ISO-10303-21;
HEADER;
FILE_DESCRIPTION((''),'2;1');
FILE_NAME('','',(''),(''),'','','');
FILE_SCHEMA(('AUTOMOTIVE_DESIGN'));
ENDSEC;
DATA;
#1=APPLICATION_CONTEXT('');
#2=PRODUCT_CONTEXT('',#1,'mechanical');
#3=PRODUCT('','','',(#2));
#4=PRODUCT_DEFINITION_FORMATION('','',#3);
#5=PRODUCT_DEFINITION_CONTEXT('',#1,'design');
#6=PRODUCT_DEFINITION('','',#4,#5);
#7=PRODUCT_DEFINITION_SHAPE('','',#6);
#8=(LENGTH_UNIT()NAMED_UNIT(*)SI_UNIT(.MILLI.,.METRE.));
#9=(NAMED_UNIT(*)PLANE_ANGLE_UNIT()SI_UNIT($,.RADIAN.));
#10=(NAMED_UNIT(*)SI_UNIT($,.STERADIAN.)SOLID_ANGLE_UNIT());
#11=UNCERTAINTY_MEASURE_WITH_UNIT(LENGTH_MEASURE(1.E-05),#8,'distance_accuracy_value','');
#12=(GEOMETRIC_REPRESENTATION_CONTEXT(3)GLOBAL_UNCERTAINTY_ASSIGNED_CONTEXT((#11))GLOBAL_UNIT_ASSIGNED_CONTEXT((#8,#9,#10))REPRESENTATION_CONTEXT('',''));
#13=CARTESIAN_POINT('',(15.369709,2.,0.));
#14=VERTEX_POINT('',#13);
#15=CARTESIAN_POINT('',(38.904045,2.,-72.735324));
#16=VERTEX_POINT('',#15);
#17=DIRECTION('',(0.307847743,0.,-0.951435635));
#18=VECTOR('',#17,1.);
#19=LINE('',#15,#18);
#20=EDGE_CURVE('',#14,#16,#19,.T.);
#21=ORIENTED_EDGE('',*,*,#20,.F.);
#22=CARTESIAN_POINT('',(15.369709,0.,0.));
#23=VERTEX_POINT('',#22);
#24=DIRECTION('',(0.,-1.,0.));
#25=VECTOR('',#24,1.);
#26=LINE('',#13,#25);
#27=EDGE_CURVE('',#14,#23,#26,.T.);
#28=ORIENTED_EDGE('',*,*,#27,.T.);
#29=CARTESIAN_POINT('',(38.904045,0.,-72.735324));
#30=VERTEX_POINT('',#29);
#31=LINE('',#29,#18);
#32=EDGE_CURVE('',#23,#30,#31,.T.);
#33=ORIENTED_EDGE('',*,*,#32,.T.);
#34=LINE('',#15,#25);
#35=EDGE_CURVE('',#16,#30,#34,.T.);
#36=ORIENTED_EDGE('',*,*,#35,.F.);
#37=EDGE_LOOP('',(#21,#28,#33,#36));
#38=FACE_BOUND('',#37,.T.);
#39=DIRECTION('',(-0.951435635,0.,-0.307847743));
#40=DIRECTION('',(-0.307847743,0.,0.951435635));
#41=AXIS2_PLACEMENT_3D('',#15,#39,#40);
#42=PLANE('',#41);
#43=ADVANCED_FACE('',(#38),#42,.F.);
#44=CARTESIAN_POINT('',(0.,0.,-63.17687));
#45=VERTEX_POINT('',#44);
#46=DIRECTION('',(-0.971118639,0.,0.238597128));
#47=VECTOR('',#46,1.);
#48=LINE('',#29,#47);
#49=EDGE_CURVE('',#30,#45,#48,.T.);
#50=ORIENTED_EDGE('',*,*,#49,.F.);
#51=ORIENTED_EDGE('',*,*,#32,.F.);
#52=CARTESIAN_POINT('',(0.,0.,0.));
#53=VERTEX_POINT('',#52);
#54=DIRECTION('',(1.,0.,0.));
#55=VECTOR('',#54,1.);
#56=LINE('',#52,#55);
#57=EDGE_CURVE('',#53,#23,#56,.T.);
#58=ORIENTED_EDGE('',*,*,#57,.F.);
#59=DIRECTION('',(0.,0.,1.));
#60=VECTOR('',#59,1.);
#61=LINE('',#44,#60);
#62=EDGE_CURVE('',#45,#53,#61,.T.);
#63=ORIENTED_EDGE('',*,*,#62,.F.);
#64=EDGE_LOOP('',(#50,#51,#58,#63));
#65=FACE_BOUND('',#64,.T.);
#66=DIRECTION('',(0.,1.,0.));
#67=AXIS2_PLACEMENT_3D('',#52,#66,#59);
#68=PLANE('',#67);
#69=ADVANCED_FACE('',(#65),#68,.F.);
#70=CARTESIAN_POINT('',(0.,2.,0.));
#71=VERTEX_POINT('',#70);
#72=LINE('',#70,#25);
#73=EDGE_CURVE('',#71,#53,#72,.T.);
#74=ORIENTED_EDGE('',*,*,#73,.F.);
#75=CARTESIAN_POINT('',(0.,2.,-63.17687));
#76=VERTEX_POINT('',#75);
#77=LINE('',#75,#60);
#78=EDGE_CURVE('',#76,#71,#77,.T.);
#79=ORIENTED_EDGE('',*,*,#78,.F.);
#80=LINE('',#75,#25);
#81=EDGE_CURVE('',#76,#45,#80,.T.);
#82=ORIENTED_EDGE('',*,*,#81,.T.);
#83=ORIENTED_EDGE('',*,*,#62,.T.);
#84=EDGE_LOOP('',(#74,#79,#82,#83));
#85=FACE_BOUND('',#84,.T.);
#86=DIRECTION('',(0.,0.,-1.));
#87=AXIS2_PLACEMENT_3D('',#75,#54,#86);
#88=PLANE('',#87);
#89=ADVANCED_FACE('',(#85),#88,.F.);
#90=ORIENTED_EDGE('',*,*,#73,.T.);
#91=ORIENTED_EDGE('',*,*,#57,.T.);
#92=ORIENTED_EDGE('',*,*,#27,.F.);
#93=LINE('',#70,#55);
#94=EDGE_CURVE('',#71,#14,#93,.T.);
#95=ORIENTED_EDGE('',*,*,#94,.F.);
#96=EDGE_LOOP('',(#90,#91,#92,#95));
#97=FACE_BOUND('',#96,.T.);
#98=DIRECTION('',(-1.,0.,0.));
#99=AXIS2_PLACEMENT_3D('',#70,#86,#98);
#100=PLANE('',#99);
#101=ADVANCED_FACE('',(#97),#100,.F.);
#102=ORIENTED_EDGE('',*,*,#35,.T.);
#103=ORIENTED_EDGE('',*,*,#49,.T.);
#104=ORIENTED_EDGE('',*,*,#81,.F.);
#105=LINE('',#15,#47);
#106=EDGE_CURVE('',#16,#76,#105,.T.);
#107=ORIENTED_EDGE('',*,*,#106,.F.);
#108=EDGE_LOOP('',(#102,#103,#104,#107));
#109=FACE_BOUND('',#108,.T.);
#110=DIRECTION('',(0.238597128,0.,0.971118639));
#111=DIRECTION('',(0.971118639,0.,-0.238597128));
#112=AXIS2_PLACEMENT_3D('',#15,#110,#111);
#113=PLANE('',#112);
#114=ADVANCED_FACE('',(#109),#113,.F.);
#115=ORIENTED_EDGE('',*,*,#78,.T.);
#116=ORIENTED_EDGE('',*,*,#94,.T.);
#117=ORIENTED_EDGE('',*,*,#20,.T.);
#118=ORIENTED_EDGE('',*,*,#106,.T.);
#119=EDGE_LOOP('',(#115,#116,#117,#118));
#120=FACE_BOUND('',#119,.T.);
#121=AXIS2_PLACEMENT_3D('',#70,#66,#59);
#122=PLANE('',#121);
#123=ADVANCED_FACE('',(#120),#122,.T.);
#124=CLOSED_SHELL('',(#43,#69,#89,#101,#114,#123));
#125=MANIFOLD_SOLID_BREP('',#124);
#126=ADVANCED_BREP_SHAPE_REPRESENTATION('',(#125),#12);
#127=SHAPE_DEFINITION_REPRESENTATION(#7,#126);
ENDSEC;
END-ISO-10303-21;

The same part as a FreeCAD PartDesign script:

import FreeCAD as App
import Part
import Sketcher

V = App.Vector


def add_polygon(sketch, points):
    """Adds a closed chain of lines whose ends are joined by coincident constraints."""
    first, n = sketch.GeometryCount, len(points)
    for a, b in zip(points, points[1:] + points[:1]):
        sketch.addGeometry(Part.LineSegment(App.Vector(*a, 0), App.Vector(*b, 0)), False)
    for i in range(n):
        sketch.addConstraint(Sketcher.Constraint("Coincident", first + i, 2, first + (i + 1) % n, 1))

doc = App.newDocument("Part")
params = doc.addObject("Spreadsheet::Sheet", "Params")
for row, (alias, value) in enumerate([
    ("pad1_length", "2 mm"),
], start=1):
    params.set(f"A{row}", alias)
    params.set(f"B{row}", "=" + value)
    params.setAlias(f"B{row}", alias)

body = doc.addObject("PartDesign::Body", "Body")

# Sketch on XZ plane
sketch1 = doc.addObject("Sketcher::SketchObject", "Sketch")
body.addObject(sketch1)
sketch1.AttachmentSupport = (doc.XZ_Plane, [""])
sketch1.MapMode = "FlatFace"
add_polygon(sketch1, [(39, -73), (0, -63), (0, 0), (15, 0)])  # lines 0-3
sketch1.addConstraint(Sketcher.Constraint("Vertical", 1))
sketch1.addConstraint(Sketcher.Constraint("Horizontal", 2))
sketch1.addConstraint(Sketcher.Constraint("Coincident", 1, 2, -1, 1))
sketch1.addConstraint(Sketcher.Constraint("DistanceX", 2, 1, 2, 2, 15.369709))
sketch1.addConstraint(Sketcher.Constraint("DistanceY", 1, 1, 1, 2, 63.17687))
sketch1.addConstraint(Sketcher.Constraint("Distance", 3, 76.447971))
sketch1.addConstraint(Sketcher.Constraint("Distance", 0, 40.061063))
pad1 = doc.addObject("PartDesign::Pad", "Pad")
body.addObject(pad1)
pad1.Profile = sketch1
pad1.setExpression("Length", "Params.pad1_length")
pad1.Reversed = True

doc.recompute()
